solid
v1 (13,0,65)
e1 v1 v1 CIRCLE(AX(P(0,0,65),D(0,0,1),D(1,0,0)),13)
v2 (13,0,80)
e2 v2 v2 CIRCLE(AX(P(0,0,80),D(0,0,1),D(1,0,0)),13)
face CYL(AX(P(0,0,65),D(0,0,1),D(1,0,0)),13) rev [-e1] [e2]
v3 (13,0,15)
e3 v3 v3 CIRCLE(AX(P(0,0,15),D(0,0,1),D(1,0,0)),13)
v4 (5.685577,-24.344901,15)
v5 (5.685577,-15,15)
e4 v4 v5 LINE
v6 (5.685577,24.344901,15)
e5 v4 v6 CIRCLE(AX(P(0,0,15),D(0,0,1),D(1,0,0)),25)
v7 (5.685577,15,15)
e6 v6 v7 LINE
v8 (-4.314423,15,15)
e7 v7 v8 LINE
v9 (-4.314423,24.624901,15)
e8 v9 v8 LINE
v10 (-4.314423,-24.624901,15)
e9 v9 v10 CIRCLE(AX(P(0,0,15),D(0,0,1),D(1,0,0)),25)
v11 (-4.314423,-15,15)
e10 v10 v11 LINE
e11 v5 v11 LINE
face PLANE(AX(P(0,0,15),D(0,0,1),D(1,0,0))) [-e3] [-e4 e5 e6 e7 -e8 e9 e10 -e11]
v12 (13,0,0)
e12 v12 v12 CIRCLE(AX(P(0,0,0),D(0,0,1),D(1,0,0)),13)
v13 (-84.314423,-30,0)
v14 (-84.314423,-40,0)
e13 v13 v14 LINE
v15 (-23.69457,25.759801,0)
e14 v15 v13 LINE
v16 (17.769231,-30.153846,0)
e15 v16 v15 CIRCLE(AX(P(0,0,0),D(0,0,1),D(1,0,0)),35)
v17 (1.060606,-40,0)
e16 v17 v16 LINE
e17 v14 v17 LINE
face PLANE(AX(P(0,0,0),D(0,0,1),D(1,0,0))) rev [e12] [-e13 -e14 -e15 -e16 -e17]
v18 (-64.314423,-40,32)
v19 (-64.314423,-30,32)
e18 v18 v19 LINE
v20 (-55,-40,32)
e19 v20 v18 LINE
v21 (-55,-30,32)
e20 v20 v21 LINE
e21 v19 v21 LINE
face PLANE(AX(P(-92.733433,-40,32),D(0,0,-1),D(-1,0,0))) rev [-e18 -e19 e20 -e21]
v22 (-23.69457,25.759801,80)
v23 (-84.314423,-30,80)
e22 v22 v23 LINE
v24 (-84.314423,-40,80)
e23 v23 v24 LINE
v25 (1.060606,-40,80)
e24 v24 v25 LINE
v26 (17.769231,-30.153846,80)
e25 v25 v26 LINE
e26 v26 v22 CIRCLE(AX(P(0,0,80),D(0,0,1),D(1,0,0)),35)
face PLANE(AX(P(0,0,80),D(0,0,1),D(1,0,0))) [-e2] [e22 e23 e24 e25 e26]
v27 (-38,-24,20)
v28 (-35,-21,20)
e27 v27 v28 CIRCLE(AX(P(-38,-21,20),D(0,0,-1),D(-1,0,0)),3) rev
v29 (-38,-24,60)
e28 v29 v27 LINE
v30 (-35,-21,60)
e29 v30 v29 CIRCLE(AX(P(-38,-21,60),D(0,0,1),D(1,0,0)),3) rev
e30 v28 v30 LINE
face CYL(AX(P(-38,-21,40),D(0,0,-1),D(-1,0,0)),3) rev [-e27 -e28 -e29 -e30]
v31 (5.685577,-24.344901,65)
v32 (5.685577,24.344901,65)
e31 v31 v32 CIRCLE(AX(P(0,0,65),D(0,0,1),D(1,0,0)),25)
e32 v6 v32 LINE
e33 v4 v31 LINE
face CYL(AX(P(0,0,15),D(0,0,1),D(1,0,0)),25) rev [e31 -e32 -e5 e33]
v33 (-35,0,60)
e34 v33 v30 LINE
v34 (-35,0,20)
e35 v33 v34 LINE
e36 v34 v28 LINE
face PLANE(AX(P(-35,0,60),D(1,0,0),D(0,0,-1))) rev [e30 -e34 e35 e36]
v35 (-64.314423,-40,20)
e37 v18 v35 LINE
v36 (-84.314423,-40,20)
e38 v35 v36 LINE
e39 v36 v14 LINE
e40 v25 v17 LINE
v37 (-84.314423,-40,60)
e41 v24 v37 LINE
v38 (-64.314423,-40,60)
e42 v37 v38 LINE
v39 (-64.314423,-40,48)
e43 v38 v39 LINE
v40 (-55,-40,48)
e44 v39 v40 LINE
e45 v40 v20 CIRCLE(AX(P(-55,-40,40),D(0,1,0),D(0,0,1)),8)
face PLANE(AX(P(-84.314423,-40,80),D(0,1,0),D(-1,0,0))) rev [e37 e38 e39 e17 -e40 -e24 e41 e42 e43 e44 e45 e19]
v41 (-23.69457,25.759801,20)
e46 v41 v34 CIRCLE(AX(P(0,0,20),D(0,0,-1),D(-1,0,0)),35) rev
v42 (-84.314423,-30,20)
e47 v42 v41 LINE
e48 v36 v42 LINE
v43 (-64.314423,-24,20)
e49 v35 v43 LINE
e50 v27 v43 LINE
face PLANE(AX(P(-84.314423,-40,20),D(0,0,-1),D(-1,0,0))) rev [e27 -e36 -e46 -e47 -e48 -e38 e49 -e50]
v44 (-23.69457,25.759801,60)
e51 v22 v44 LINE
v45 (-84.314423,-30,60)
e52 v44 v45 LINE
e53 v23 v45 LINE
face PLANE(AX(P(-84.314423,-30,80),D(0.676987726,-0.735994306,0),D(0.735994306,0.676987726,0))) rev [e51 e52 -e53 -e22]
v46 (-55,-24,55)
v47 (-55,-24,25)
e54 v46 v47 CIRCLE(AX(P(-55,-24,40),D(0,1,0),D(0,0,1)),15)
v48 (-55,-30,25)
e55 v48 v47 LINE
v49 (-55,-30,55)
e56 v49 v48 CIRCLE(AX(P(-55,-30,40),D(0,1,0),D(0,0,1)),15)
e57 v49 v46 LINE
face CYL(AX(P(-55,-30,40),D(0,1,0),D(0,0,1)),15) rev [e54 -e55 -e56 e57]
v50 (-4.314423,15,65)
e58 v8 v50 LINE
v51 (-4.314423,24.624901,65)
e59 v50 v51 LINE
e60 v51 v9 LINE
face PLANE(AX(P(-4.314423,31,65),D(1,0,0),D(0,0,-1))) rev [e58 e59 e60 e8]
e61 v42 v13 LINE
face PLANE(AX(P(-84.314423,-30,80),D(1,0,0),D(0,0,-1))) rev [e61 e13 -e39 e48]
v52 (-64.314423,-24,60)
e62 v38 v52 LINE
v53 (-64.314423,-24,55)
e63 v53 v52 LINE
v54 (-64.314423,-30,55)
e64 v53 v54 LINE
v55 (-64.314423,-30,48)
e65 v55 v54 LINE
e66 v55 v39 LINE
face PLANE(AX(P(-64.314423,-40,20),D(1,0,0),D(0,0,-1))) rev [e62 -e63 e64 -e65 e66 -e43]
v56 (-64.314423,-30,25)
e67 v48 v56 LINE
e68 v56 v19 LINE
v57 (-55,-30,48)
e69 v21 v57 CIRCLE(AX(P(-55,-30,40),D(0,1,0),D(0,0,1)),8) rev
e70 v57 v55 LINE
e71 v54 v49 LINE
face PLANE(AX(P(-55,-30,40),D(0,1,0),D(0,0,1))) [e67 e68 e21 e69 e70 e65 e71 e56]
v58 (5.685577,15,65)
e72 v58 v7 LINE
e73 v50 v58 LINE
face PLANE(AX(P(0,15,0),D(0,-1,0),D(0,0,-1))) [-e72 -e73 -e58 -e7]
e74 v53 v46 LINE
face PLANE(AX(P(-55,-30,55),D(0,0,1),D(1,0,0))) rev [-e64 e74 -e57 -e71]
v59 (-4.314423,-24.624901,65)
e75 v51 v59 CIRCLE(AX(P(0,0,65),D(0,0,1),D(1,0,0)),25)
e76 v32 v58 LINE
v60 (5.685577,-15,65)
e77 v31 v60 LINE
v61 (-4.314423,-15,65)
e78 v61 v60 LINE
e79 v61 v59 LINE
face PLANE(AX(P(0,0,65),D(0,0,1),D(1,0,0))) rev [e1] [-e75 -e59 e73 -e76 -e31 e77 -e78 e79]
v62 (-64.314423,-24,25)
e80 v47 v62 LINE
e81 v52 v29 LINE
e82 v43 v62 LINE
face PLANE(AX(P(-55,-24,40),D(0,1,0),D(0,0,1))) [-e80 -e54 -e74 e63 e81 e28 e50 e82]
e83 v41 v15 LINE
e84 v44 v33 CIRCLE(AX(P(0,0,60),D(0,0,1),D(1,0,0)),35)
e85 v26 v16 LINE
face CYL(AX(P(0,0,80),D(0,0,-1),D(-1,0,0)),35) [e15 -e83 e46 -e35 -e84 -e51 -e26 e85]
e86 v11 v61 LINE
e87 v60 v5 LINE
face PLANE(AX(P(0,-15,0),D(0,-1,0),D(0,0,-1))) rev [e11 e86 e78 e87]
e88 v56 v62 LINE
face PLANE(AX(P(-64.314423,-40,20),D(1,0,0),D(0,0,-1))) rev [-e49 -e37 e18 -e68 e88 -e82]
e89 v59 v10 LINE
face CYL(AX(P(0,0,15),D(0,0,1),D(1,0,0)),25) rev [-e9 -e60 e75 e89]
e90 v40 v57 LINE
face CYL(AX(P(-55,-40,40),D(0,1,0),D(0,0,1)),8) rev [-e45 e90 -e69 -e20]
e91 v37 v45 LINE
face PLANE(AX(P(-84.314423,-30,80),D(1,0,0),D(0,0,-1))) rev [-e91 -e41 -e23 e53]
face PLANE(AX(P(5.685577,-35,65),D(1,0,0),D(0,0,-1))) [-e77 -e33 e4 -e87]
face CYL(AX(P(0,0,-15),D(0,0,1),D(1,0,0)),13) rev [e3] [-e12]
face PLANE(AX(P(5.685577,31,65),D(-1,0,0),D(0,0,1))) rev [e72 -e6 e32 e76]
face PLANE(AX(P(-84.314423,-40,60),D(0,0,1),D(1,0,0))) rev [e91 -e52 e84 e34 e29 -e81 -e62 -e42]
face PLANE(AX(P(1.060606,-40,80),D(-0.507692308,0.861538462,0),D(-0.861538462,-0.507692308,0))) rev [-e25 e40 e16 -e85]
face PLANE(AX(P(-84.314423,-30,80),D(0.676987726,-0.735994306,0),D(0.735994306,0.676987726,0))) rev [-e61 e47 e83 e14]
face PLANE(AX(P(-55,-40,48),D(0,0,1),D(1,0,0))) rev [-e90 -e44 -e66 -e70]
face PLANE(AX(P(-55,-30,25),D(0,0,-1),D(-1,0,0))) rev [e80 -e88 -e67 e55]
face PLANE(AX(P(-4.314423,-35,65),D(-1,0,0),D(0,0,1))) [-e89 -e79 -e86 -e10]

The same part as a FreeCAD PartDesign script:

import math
import FreeCAD as App
import Part
import Sketcher

V = App.Vector
Q = App.Units.Quantity


def edges_at(feature, points):
    """Names of the edges that pass closest to the given points."""
    edges = feature.Shape.Edges
    near = lambda p: min(range(len(edges)), key=lambda i: edges[i].distToShape(Part.Vertex(*p))[0])
    return sorted({f"Edge{near(p) + 1}" for p in points})


def add_polygon(sketch, points):
    """Adds a closed chain of lines whose ends are joined by coincident constraints."""
    first, n = sketch.GeometryCount, len(points)
    for a, b in zip(points, points[1:] + points[:1]):
        sketch.addGeometry(Part.LineSegment(App.Vector(*a, 0), App.Vector(*b, 0)), False)
    for i in range(n):
        sketch.addConstraint(Sketcher.Constraint("Coincident", first + i, 2, first + (i + 1) % n, 1))

doc = App.newDocument("Part")
body = doc.addObject("PartDesign::Body", "Body")

sketch1 = body.newObject("Sketcher::SketchObject", "Sketch")
sketch1.AttachmentSupport = (doc.getObject("XY_Plane"), [""])
sketch1.MapMode = "FlatFace"
sketch1.addGeometry([
    Part.LineSegment(V(-23.69457, 25.759801, 0), V(-84.314423, -30, 0)),
    Part.LineSegment(V(-84.314423, -30, 0), V(-84.314423, -40, 0)),
    Part.LineSegment(V(-84.314423, -40, 0), V(1.060606, -40, 0)),
    Part.LineSegment(V(1.060606, -40, 0), V(17.769231, -30.153846, 0)),
    Part.ArcOfCircle(Part.Circle(V(0, 0, 0), V(0, 0, 1), 35), math.radians(-59.489763), math.radians(132.608699)),
], False)
sketch1.addConstraint([
    Sketcher.Constraint("Coincident", 0, 2, 1, 1),
    Sketcher.Constraint("Coincident", 1, 2, 2, 1),
    Sketcher.Constraint("Coincident", 2, 2, 3, 1),
    Sketcher.Constraint("Tangent", 3, 2, 4, 1),
    Sketcher.Constraint("Tangent", 4, 2, 0, 1),
    Sketcher.Constraint("Vertical", 1),
    Sketcher.Constraint("Horizontal", 2),
    Sketcher.Constraint("Coincident", 4, 3, -1, 1),
    Sketcher.Constraint("Radius", 4, Q("35 mm")),
    Sketcher.Constraint("DistanceY", 1, 2, 1, 1, Q("10 mm")),
    Sketcher.Constraint("DistanceY", 0, 2, -1, 1, Q("30 mm")),
    Sketcher.Constraint("DistanceX", 2, 1, 2, 2, Q("85.375029 mm")),
    Sketcher.Constraint("DistanceY", -1, 1, 4, 2, Q("25.759801 mm")),
])
pad1 = body.newObject("PartDesign::Pad", "Pad")
pad1.Profile = sketch1
pad1.Length = 80

sketch2 = body.newObject("Sketcher::SketchObject", "Sketch001")
sketch2.AttachmentSupport = (doc.getObject("XY_Plane"), [""])
sketch2.MapMode = "FlatFace"
sketch2.addGeometry(Part.Circle(V(0, 0, 0), V(0, 0, 1), 13), False)
sketch2.addConstraint([
    Sketcher.Constraint("Coincident", 0, 3, -1, 1),
    Sketcher.Constraint("Diameter", 0, Q("26 mm")),
])
pocket1 = body.newObject("PartDesign::Pocket", "Pocket")
pocket1.Profile = sketch2
pocket1.Length = 15
pocket1.Reversed = True

sketch3 = body.newObject("Sketcher::SketchObject", "Sketch002")
sketch3.AttachmentSupport = (doc.getObject("XY_Plane"), [""])
sketch3.MapMode = "FlatFace"
sketch3.AttachmentOffset = App.Placement(V(0, 0, 65), App.Rotation())
sketch3.addGeometry(Part.Circle(V(0, 0, 0), V(0, 0, 1), 13), False)
sketch3.addConstraint([
    Sketcher.Constraint("Coincident", 0, 3, -1, 1),
    Sketcher.Constraint("Diameter", 0, Q("26 mm")),
])
pocket2 = body.newObject("PartDesign::Pocket", "Pocket001")
pocket2.Profile = sketch3
pocket2.Length = 15
pocket2.Reversed = True

sketch4 = body.newObject("Sketcher::SketchObject", "Sketch003")
sketch4.AttachmentSupport = (doc.getObject("XZ_Plane"), [""])
sketch4.MapMode = "FlatFace"
add_polygon(sketch4, [(-84.314423, 20), (-84.314423, 60), (-64.314423, 60), (-64.314423, 20)])
sketch4.addConstraint([
    Sketcher.Constraint("Vertical", 0),
    Sketcher.Constraint("Horizontal", 1),
    Sketcher.Constraint("Vertical", 2),
    Sketcher.Constraint("Horizontal", 3),
    Sketcher.Constraint("DistanceX", 1, 1, 1, 2, Q("20 mm")),
    Sketcher.Constraint("DistanceY", 0, 1, 0, 2, Q("40 mm")),
    Sketcher.Constraint("DistanceY", -1, 1, 0, 2, Q("60 mm")),
    Sketcher.Constraint("DistanceX", 0, 2, -1, 1, Q("84.314423 mm")),
])
pocket3 = body.newObject("PartDesign::Pocket", "Pocket002")
pocket3.Profile = sketch4
pocket3.Type = "ThroughAll"
pocket3.Midplane = True

sketch5 = body.newObject("Sketcher::SketchObject", "Sketch004")
sketch5.AttachmentSupport = (doc.getObject("XZ_Plane"), [""])
sketch5.MapMode = "FlatFace"
sketch5.addGeometry([
    Part.LineSegment(V(-55, 25, 0), V(-84.314423, 25, 0)),
    Part.LineSegment(V(-84.314423, 25, 0), V(-84.314423, 55, 0)),
    Part.LineSegment(V(-84.314423, 55, 0), V(-55, 55, 0)),
    Part.ArcOfCircle(Part.Circle(V(-55, 40, 0), V(0, 0, 1), 15), math.radians(-90), math.radians(90)),
], False)
sketch5.addConstraint([
    Sketcher.Constraint("Coincident", 0, 2, 1, 1),
    Sketcher.Constraint("Coincident", 1, 2, 2, 1),
    Sketcher.Constraint("Tangent", 2, 2, 3, 2),
    Sketcher.Constraint("Tangent", 3, 1, 0, 1),
    Sketcher.Constraint("Horizontal", 0),
    Sketcher.Constraint("Vertical", 1),
    Sketcher.Constraint("Horizontal", 2),
    Sketcher.Constraint("Radius", 3, Q("15 mm")),
    Sketcher.Constraint("DistanceX", 3, 3, -1, 1, Q("55 mm")),
    Sketcher.Constraint("DistanceY", -1, 1, 3, 3, Q("40 mm")),
    Sketcher.Constraint("DistanceX", 0, 2, 0, 1, Q("29.314423 mm")),
])
pocket4 = body.newObject("PartDesign::Pocket", "Pocket003")
pocket4.Profile = sketch5
pocket4.Type = "TwoLengths"
pocket4.Length = 123.918354
pocket4.Length2 = 24

sketch6 = body.newObject("Sketcher::SketchObject", "Sketch005")
sketch6.AttachmentSupport = (doc.getObject("XZ_Plane"), [""])
sketch6.MapMode = "FlatFace"
sketch6.AttachmentOffset = App.Placement(V(0, 0, 24), App.Rotation())
sketch6.addGeometry([
    Part.LineSegment(V(-92.733433, 48, 0), V(-55, 48, 0)),
    Part.ArcOfCircle(Part.Circle(V(-55, 40, 0), V(0, 0, 1), 8), math.radians(-90), math.radians(90)),
    Part.LineSegment(V(-55, 32, 0), V(-92.733433, 32, 0)),
    Part.LineSegment(V(-92.733433, 32, 0), V(-92.733433, 48, 0)),
], False)
sketch6.addConstraint([
    Sketcher.Constraint("Tangent", 0, 2, 1, 2),
    Sketcher.Constraint("Tangent", 1, 1, 2, 1),
    Sketcher.Constraint("Coincident", 2, 2, 3, 1),
    Sketcher.Constraint("Coincident", 3, 2, 0, 1),
    Sketcher.Constraint("Horizontal", 0),
    Sketcher.Constraint("Horizontal", 2),
    Sketcher.Constraint("Vertical", 3),
    Sketcher.Constraint("Radius", 1, Q("8 mm")),
    Sketcher.Constraint("DistanceX", 1, 3, -1, 1, Q("55 mm")),
    Sketcher.Constraint("DistanceY", -1, 1, 1, 3, Q("40 mm")),
    Sketcher.Constraint("DistanceX", 0, 1, 0, 2, Q("37.733433 mm")),
])
pocket5 = body.newObject("PartDesign::Pocket", "Pocket004")
pocket5.Profile = sketch6
pocket5.Type = "ThroughAll"
pocket5.Reversed = True

sketch7 = body.newObject("Sketcher::SketchObject", "Sketch006")
sketch7.AttachmentSupport = (doc.getObject("XZ_Plane"), [""])
sketch7.MapMode = "FlatFace"
add_polygon(sketch7, [(-64.314423, 20), (-64.314423, 60), (-34.314423, 60), (-34.314423, 20)])
sketch7.addConstraint([
    Sketcher.Constraint("Vertical", 0),
    Sketcher.Constraint("Horizontal", 1),
    Sketcher.Constraint("Vertical", 2),
    Sketcher.Constraint("Horizontal", 3),
    Sketcher.Constraint("DistanceX", 1, 1, 1, 2, Q("30 mm")),
    Sketcher.Constraint("DistanceY", 0, 1, 0, 2, Q("40 mm")),
    Sketcher.Constraint("DistanceY", -1, 1, 0, 2, Q("60 mm")),
    Sketcher.Constraint("DistanceX", 0, 2, -1, 1, Q("64.314423 mm")),
])
pocket6 = body.newObject("PartDesign::Pocket", "Pocket005")
pocket6.Profile = sketch7
pocket6.Type = "TwoLengths"
pocket6.Length = 32
pocket6.Length2 = 24

sketch8 = body.newObject("Sketcher::SketchObject", "Sketch007")
sketch8.AttachmentSupport = (doc.getObject("XZ_Plane"), [""])
sketch8.MapMode = "FlatFace"
sketch8.AttachmentOffset = App.Placement(V(0, 0, 24), App.Rotation())
sketch8.addGeometry([
    Part.LineSegment(V(-55, 25, 0), V(-81.861005, 25, 0)),
    Part.LineSegment(V(-81.861005, 25, 0), V(-81.861005, 55, 0)),
    Part.LineSegment(V(-81.861005, 55, 0), V(-55, 55, 0)),
    Part.ArcOfCircle(Part.Circle(V(-55, 40, 0), V(0, 0, 1), 15), math.radians(-90), math.radians(90)),
], False)
sketch8.addConstraint([
    Sketcher.Constraint("Coincident", 0, 2, 1, 1),
    Sketcher.Constraint("Coincident", 1, 2, 2, 1),
    Sketcher.Constraint("Tangent", 2, 2, 3, 2),
    Sketcher.Constraint("Tangent", 3, 1, 0, 1),
    Sketcher.Constraint("Horizontal", 0),
    Sketcher.Constraint("Vertical", 1),
    Sketcher.Constraint("Horizontal", 2),
    Sketcher.Constraint("Radius", 3, Q("15 mm")),
    Sketcher.Constraint("DistanceX", 3, 3, -1, 1, Q("55 mm")),
    Sketcher.Constraint("DistanceY", -1, 1, 3, 3, Q("40 mm")),
    Sketcher.Constraint("DistanceX", 0, 2, 0, 1, Q("26.861005 mm")),
])
pocket7 = body.newObject("PartDesign::Pocket", "Pocket006")
pocket7.Profile = sketch8
pocket7.Length = 6
pocket7.Reversed = True

sketch9 = body.newObject("Sketcher::SketchObject", "Sketch008")
sketch9.AttachmentSupport = (doc.getObject("XZ_Plane"), [""])
sketch9.MapMode = "FlatFace"
sketch9.AttachmentOffset = App.Placement(V(0, 0, 24), App.Rotation())
add_polygon(sketch9, [(-34.314423, 20), (-34.314423, 60), (-23.69457, 60), (-23.69457, 20)])
sketch9.addConstraint([
    Sketcher.Constraint("Vertical", 0),
    Sketcher.Constraint("Horizontal", 1),
    Sketcher.Constraint("Vertical", 2),
    Sketcher.Constraint("Horizontal", 3),
    Sketcher.Constraint("DistanceY", 0, 1, 0, 2, Q("40 mm")),
    Sketcher.Constraint("DistanceY", -1, 1, 0, 2, Q("60 mm")),
    Sketcher.Constraint("DistanceX", 1, 1, 1, 2, Q("10.619852 mm")),
    Sketcher.Constraint("DistanceX", 1, 2, -1, 1, Q("23.69457 mm")),
])
pocket8 = body.newObject("PartDesign::Pocket", "Pocket007")
pocket8.Profile = sketch9
pocket8.Length = 71

sketch10 = body.newObject("Sketcher::SketchObject", "Sketch009")
sketch10.AttachmentSupport = (doc.getObject("XY_Plane"), [""])
sketch10.MapMode = "FlatFace"
sketch10.addGeometry([
    Part.LineSegment(V(-35, 0, 0), V(-35, -24, 0)),
    Part.LineSegment(V(-35, -24, 0), V(-25.475478, -24, 0)),
    Part.ArcOfCircle(Part.Circle(V(0, 0, 0), V(0, 0, 1), 35), math.radians(-136.708192), math.radians(180)),
], False)
sketch10.addConstraint([
    Sketcher.Constraint("Coincident", 0, 2, 1, 1),
    Sketcher.Constraint("Coincident", 1, 2, 2, 1),
    Sketcher.Constraint("Tangent", 2, 2, 0, 1),
    Sketcher.Constraint("Vertical", 0),
    Sketcher.Constraint("Horizontal", 1),
    Sketcher.Constraint("Coincident", 2, 3, -1, 1),
    Sketcher.Constraint("Radius", 2, Q("35 mm")),
    Sketcher.Constraint("DistanceY", 0, 2, 0, 1, Q("24 mm")),
])
pad2 = body.newObject("PartDesign::Pad", "Pad001")
pad2.Profile = sketch10
pad2.Length = 60
doc.recompute()

fillet = body.newObject("PartDesign::Fillet", "Fillet")
fillet.Base = (pad2, edges_at(pad2, [(-35, -24, 40)]))
fillet.Radius = 3

sketch11 = body.newObject("Sketcher::SketchObject", "Sketch010")
sketch11.AttachmentSupport = (doc.getObject("XY_Plane"), [""])
sketch11.MapMode = "FlatFace"
sketch11.AttachmentOffset = App.Placement(V(0, 0, 65), App.Rotation())
sketch11.addGeometry(Part.Circle(V(0, 0, 0), V(0, 0, 1), 25), False)
sketch11.addConstraint([
    Sketcher.Constraint("Coincident", 0, 3, -1, 1),
    Sketcher.Constraint("Diameter", 0, Q("50 mm")),
])
pocket9 = body.newObject("PartDesign::Pocket", "Pocket008")
pocket9.Profile = sketch11
pocket9.Length = 50

sketch12 = body.newObject("Sketcher::SketchObject", "Sketch011")
sketch12.AttachmentSupport = (doc.getObject("XY_Plane"), [""])
sketch12.MapMode = "FlatFace"
sketch12.AttachmentOffset = App.Placement(V(0, 0, -15), App.Rotation())
sketch12.addGeometry(Part.Circle(V(0, 0, 0), V(0, 0, 1), 13), False)
sketch12.addConstraint([
    Sketcher.Constraint("Coincident", 0, 3, -1, 1),
    Sketcher.Constraint("Diameter", 0, Q("26 mm")),
])
pocket10 = body.newObject("PartDesign::Pocket", "Pocket009")
pocket10.Profile = sketch12
pocket10.Length = 95
pocket10.Reversed = True

sketch13 = body.newObject("Sketcher::SketchObject", "Sketch012")
sketch13.AttachmentSupport = (doc.getObject("XZ_Plane"), [""])
sketch13.MapMode = "FlatFace"
sketch13.AttachmentOffset = App.Placement(V(0, 0, -15), App.Rotation())
add_polygon(sketch13, [(-4.314423, 15), (-4.314423, 65), (5.685577, 65), (5.685577, 15)])
sketch13.addConstraint([
    Sketcher.Constraint("Vertical", 0),
    Sketcher.Constraint("Horizontal", 1),
    Sketcher.Constraint("Vertical", 2),
    Sketcher.Constraint("Horizontal", 3),
    Sketcher.Constraint("DistanceX", 1, 1, 1, 2, Q("10 mm")),
    Sketcher.Constraint("DistanceY", 0, 1, 0, 2, Q("50 mm")),
    Sketcher.Constraint("DistanceY", -1, 1, 0, 2, Q("65 mm")),
    Sketcher.Constraint("DistanceX", 0, 2, -1, 1, Q("4.314423 mm")),
])
pad3 = body.newObject("PartDesign::Pad", "Pad002")
pad3.Profile = sketch13
pad3.Length = 16
pad3.Reversed = True

sketch14 = body.newObject("Sketcher::SketchObject", "Sketch013")
sketch14.AttachmentSupport = (doc.getObject("XZ_Plane"), [""])
sketch14.MapMode = "FlatFace"
sketch14.AttachmentOffset = App.Placement(V(0, 0, 15), App.Rotation())
add_polygon(sketch14, [(-4.314423, 15), (-4.314423, 65), (5.685577, 65), (5.685577, 15)])
sketch14.addConstraint([
    Sketcher.Constraint("Vertical", 0),
    Sketcher.Constraint("Horizontal", 1),
    Sketcher.Constraint("Vertical", 2),
    Sketcher.Constraint("Horizontal", 3),
    Sketcher.Constraint("DistanceX", 1, 1, 1, 2, Q("10 mm")),
    Sketcher.Constraint("DistanceY", 0, 1, 0, 2, Q("50 mm")),
    Sketcher.Constraint("DistanceY", -1, 1, 0, 2, Q("65 mm")),
    Sketcher.Constraint("DistanceX", 0, 2, -1, 1, Q("4.314423 mm")),
])
pad4 = body.newObject("PartDesign::Pad", "Pad003")
pad4.Profile = sketch14
pad4.Length = 20

doc.recompute()
